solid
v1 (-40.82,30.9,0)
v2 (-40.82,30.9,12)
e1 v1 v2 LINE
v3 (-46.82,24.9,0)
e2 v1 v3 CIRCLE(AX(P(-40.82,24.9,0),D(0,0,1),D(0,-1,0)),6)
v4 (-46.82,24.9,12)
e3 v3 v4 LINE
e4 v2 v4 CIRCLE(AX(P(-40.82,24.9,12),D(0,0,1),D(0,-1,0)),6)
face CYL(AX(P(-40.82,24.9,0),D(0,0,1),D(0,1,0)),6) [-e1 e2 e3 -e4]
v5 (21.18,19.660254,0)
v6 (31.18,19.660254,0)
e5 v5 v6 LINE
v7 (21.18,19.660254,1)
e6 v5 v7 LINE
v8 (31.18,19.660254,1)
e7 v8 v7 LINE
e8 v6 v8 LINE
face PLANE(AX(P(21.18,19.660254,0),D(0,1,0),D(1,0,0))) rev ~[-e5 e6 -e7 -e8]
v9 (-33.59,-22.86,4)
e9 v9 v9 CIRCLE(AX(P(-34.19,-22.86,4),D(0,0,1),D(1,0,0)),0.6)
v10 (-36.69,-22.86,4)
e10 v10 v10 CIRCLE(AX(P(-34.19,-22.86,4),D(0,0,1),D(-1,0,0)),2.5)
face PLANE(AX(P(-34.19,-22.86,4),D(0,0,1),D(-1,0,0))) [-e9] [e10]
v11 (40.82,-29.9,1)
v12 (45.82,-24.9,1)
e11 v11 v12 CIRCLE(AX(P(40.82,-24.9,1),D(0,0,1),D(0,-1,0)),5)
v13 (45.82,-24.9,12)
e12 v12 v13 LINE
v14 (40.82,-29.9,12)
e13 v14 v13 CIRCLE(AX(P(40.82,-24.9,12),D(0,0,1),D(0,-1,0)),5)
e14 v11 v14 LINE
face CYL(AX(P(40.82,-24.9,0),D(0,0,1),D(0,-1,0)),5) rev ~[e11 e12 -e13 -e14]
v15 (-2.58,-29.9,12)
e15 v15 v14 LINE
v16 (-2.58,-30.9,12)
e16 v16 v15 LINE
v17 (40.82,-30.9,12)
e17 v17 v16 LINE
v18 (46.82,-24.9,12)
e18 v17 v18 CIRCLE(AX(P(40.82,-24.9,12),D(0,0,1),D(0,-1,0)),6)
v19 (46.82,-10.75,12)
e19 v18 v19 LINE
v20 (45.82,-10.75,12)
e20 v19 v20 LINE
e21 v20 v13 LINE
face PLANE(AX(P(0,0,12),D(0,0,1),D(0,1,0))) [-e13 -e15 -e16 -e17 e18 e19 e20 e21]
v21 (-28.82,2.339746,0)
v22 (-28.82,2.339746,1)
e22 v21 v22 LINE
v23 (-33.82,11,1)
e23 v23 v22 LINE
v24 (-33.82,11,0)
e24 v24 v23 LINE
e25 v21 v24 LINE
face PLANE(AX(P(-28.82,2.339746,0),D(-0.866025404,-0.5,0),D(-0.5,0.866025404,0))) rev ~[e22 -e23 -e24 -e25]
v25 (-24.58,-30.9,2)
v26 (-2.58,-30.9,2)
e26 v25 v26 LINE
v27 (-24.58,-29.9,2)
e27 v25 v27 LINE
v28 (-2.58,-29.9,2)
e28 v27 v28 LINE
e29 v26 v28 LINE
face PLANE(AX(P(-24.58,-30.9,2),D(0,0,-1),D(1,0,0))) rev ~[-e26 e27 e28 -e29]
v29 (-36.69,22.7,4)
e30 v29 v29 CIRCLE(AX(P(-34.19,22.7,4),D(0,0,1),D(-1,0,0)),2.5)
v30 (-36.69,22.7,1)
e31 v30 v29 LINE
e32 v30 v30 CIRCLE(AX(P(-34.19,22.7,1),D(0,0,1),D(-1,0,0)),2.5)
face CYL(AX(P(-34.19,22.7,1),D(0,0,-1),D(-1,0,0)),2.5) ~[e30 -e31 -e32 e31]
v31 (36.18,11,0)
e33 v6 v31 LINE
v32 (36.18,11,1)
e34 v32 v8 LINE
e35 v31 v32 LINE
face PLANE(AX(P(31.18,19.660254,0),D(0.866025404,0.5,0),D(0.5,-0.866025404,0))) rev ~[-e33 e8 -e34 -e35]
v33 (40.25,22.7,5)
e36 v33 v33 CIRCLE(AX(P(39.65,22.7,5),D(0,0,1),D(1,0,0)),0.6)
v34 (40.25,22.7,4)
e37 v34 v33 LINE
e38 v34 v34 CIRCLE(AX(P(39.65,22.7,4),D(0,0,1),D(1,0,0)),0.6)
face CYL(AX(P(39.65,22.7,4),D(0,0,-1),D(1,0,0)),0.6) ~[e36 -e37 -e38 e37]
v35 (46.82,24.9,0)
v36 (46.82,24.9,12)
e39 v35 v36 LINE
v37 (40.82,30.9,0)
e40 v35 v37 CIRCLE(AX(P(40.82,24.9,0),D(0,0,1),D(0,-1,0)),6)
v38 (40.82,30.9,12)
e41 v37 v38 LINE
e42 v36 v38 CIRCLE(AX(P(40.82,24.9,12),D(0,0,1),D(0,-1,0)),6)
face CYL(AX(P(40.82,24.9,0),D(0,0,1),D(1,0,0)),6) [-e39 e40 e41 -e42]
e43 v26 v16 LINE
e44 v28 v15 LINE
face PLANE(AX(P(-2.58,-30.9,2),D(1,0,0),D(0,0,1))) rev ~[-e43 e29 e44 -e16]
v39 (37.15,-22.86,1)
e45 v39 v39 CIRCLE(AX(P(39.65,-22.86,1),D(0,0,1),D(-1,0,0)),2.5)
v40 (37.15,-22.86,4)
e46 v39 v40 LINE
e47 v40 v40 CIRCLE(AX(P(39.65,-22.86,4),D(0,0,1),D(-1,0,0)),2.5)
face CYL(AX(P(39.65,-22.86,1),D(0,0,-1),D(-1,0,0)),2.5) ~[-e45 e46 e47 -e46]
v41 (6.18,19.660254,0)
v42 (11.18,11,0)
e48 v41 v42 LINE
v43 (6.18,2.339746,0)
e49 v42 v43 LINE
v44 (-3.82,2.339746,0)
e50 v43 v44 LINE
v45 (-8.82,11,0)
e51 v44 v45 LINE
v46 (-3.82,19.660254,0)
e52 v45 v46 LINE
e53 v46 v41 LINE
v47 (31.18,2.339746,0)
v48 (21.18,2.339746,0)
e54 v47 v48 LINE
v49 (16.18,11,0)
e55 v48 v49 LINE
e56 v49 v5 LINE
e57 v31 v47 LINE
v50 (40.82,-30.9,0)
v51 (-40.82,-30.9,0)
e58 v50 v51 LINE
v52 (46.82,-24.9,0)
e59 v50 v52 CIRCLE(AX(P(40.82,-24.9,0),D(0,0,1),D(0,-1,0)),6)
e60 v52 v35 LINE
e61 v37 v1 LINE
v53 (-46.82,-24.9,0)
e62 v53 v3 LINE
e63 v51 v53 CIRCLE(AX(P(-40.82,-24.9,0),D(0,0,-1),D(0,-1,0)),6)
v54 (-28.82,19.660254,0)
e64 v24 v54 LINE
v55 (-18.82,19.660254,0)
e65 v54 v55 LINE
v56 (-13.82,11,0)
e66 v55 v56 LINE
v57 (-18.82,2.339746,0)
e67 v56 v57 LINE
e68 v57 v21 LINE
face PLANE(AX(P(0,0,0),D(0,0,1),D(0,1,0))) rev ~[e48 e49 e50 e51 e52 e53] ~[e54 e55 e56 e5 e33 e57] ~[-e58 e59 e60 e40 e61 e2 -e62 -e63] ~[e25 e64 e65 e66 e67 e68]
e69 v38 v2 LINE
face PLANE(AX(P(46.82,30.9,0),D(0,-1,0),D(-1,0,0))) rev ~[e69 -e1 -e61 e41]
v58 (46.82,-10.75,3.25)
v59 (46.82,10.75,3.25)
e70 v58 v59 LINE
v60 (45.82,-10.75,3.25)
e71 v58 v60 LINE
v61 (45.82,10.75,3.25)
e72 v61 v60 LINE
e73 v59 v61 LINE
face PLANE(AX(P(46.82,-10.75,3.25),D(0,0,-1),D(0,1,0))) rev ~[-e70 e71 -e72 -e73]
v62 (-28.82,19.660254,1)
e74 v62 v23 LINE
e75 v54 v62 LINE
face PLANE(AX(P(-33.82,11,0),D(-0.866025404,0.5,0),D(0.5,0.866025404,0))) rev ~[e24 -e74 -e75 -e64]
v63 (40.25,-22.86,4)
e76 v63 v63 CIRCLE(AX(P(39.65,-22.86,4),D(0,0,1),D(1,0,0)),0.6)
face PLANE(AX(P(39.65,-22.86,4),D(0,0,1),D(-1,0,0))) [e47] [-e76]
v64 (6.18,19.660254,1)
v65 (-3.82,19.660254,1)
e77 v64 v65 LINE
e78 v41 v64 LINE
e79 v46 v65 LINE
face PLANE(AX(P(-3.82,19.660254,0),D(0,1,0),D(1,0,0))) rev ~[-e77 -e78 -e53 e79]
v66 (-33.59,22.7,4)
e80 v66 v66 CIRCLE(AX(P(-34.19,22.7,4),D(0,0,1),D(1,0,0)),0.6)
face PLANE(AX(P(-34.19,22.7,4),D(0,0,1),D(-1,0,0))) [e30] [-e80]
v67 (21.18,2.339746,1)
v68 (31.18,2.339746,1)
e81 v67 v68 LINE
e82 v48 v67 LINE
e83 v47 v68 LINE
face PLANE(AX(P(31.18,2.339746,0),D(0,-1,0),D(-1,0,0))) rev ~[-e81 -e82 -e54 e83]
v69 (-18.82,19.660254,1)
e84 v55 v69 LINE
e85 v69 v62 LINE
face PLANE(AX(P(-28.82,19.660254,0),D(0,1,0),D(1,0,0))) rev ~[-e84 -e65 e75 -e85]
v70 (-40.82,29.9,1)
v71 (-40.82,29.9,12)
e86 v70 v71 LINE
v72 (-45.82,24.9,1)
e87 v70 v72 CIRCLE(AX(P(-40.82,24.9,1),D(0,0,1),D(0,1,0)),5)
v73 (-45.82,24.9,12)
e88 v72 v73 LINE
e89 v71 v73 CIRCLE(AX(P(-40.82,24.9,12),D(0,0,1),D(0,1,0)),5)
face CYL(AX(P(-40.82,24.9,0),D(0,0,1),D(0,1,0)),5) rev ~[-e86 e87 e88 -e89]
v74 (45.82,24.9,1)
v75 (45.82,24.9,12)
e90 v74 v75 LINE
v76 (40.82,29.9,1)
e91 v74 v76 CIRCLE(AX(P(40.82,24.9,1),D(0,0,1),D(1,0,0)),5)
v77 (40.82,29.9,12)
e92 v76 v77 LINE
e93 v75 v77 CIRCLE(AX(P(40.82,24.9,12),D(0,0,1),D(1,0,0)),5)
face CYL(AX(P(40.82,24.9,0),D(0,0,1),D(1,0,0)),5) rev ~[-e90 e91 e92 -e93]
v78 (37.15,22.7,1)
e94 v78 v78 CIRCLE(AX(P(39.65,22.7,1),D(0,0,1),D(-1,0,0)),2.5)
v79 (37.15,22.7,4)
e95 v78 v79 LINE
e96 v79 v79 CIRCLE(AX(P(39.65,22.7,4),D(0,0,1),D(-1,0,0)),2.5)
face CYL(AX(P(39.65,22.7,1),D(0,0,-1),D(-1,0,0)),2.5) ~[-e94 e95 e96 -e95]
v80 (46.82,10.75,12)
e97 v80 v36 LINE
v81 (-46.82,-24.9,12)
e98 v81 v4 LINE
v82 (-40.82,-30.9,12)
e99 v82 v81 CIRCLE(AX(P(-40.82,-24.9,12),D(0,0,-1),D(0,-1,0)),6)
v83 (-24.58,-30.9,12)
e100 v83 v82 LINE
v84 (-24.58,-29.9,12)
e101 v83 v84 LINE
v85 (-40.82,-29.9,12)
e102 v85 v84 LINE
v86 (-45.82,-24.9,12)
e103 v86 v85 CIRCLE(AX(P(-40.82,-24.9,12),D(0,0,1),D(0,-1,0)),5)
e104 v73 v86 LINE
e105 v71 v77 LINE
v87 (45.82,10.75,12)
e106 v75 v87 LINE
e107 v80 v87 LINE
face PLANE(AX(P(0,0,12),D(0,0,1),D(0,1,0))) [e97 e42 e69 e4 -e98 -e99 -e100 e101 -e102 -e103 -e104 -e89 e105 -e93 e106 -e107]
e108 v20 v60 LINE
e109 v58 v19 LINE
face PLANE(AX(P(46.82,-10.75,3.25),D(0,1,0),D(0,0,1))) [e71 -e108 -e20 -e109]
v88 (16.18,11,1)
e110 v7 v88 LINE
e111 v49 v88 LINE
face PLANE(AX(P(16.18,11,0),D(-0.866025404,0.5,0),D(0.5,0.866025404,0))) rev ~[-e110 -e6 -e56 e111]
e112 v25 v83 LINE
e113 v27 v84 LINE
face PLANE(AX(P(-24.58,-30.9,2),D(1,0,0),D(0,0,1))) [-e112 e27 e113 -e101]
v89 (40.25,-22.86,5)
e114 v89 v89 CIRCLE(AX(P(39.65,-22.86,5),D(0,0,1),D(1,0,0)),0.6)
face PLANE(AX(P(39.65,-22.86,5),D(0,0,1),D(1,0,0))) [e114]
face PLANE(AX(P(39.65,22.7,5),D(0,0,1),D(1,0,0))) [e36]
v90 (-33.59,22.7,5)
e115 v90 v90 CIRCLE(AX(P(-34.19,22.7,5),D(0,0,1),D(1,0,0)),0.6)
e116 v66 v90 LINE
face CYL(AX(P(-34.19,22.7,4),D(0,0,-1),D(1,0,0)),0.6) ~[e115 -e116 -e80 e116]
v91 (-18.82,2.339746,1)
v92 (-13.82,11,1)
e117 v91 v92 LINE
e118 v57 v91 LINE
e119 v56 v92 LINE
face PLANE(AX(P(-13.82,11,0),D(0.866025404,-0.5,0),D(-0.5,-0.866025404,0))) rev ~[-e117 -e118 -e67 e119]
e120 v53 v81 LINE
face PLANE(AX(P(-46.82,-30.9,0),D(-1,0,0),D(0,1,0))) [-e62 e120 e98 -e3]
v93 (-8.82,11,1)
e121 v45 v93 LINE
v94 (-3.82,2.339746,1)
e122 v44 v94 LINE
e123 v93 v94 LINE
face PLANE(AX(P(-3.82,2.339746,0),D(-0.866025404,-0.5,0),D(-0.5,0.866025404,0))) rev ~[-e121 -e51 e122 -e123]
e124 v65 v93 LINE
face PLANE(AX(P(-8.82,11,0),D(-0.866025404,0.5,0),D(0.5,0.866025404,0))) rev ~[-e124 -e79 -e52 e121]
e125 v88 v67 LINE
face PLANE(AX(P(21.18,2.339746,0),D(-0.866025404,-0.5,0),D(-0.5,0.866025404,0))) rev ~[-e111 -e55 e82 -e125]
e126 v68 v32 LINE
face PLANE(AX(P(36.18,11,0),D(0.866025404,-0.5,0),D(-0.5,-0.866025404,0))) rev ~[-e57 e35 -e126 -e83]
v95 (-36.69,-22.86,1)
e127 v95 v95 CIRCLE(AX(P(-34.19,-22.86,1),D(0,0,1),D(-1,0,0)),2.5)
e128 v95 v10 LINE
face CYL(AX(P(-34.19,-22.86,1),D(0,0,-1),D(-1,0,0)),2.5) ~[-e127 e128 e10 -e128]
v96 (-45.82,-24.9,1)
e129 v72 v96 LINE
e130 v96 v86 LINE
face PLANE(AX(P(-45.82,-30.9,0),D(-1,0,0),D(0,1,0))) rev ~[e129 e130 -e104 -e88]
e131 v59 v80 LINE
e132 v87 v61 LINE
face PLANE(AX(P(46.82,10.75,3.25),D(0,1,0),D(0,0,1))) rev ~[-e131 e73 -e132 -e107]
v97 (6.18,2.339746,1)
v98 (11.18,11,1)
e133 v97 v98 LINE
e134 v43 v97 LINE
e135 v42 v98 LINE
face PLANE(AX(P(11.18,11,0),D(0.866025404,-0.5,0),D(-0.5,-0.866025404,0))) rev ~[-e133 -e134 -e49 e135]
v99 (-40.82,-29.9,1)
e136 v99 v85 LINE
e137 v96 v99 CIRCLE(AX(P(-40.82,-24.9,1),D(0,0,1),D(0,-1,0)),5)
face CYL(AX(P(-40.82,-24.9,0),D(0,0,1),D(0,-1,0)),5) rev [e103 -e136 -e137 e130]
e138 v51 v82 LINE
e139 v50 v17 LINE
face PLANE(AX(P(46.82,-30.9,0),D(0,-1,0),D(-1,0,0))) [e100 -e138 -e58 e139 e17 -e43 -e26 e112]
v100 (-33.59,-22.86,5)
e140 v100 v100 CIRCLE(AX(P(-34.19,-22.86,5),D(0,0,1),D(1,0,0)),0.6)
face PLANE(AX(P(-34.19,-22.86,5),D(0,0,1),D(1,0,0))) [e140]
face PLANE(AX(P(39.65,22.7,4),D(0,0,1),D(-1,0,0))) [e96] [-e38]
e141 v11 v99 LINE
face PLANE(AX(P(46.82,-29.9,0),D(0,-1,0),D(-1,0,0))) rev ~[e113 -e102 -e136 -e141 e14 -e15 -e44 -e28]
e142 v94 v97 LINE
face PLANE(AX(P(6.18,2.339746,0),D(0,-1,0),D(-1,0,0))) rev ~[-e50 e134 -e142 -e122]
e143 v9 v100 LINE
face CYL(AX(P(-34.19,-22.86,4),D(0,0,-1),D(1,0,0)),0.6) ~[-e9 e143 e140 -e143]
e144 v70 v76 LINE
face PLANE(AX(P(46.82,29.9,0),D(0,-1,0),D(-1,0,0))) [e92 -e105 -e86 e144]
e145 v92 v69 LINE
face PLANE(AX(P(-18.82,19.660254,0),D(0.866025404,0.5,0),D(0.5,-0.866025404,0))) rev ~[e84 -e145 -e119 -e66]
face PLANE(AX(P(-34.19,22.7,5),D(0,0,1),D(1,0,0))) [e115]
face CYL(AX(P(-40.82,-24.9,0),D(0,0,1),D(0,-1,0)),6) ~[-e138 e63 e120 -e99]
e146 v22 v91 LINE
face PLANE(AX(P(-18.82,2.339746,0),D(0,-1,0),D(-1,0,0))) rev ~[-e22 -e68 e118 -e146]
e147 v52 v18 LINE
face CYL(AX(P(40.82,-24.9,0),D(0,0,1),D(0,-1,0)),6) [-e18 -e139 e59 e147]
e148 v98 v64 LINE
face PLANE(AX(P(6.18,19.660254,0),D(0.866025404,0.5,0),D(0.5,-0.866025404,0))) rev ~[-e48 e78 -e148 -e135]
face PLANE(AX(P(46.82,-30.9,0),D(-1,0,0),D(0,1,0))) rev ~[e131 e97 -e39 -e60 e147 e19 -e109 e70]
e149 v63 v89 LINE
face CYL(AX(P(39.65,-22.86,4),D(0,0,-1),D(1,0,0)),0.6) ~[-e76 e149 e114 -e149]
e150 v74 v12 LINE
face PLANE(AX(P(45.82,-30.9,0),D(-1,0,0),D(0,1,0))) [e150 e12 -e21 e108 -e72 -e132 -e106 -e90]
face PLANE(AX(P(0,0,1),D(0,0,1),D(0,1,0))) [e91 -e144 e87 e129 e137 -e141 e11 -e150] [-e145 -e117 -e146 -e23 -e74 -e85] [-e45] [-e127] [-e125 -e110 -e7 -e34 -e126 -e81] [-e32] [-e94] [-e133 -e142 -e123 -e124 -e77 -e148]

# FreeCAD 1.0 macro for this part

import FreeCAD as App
import Part
import Sketcher

V = App.Vector
Q = App.Units.Quantity


def edges_at(feature, points):
    """Names of the edges that pass closest to the given points."""
    edges = feature.Shape.Edges
    near = lambda p: min(range(len(edges)), key=lambda i: edges[i].distToShape(Part.Vertex(*p))[0])
    return sorted({f"Edge{near(p) + 1}" for p in points})


def faces_at(feature, points):
    """Names of the faces that lie closest to the given points."""
    faces = feature.Shape.Faces
    near = lambda p: min(range(len(faces)), key=lambda i: faces[i].distToShape(Part.Vertex(*p))[0])
    return sorted({f"Face{near(p) + 1}" for p in points})

doc = App.newDocument("Part")
params = doc.addObject("Spreadsheet::Sheet", "Params")
for row, (alias, value) in enumerate([
    ("sketch1_height", "61.8 mm"),
    ("sketch1_width", "93.64 mm"),
    ("pad1_length", "12 mm"),
    ("fillet_radius", "6 mm"),
    ("thickness_wall", "1 mm"),
    ("sketch2_width", "21.5 mm"),
    ("sketch2_height", "17.5 mm"),
    ("pocket1_length", "6 mm"),
    ("sketch3_width", "22 mm"),
    ("sketch3_height", "10 mm"),
    ("pocket2_length", "6 mm"),
    ("sketch4_width", "10 mm"),
    ("sketch4_length", "10 mm"),
    ("pocket3_length", "6 mm"),
    ("linearpattern_pitch", "25 mm"),
    ("sketch5_diameter", "5 mm"),
    ("pad2_length", "3 mm"),
    ("sketch6_diameter", "1.2 mm"),
    ("pad3_length", "1 mm"),
], start=1):
    params.set(f"A{row}", alias)
    params.set(f"B{row}", "=" + value)
    params.setAlias(f"B{row}", alias)

body = doc.addObject("PartDesign::Body", "Body")

# Sketch on XY plane
sketch1 = body.newObject("Sketcher::SketchObject", "Sketch")
sketch1.AttachmentSupport = (doc.getObject("XY_Plane"), [""])
sketch1.MapMode = "FlatFace"
sketch1.addGeometry([
    Part.LineSegment(V(-46.82, -30.9, 0), V(46.82, -30.9, 0)),
    Part.LineSegment(V(46.82, -30.9, 0), V(46.82, 30.9, 0)),
    Part.LineSegment(V(46.82, 30.9, 0), V(-46.82, 30.9, 0)),
    Part.LineSegment(V(-46.82, 30.9, 0), V(-46.82, -30.9, 0)),
], False)
sketch1.addConstraint([
    Sketcher.Constraint("Coincident", 0, 2, 1, 1),
    Sketcher.Constraint("Coincident", 1, 2, 2, 1),
    Sketcher.Constraint("Coincident", 2, 2, 3, 1),
    Sketcher.Constraint("Coincident", 3, 2, 0, 1),
    Sketcher.Constraint("Horizontal", 0),
    Sketcher.Constraint("Vertical", 1),
    Sketcher.Constraint("Horizontal", 2),
    Sketcher.Constraint("Vertical", 3),
    Sketcher.Constraint("Symmetric", 0, 2, 2, 2, -1, 1),
    Sketcher.Constraint("DistanceY", 1, 1, 1, 2, Q("61.8 mm")),
    Sketcher.Constraint("DistanceX", 0, 1, 0, 2, Q("93.64 mm")),
])
sketch1.setExpression("Constraints[9]", "Params.sketch1_height")
sketch1.setExpression("Constraints[10]", "Params.sketch1_width")
pad1 = body.newObject("PartDesign::Pad", "Pad")
pad1.Profile = sketch1
pad1.setExpression("Length", "Params.pad1_length")
doc.recompute()

fillet = body.newObject("PartDesign::Fillet", "Fillet")
fillet.Base = (pad1, edges_at(pad1, [
    (46.82, 30.9, 6),
    (46.82, -30.9, 6),
    (-46.82, -30.9, 6),
    (-46.82, 30.9, 6),
]))
fillet.setExpression("Radius", "Params.fillet_radius")
doc.recompute()

thickness = body.newObject("PartDesign::Thickness", "Thickness")
thickness.Base = (fillet, faces_at(fillet, [(0, 0, 12)]))
thickness.setExpression("Value", "Params.thickness_wall")
thickness.Reversed = True
thickness.Join = "Intersection"

# Sketch on YZ plane
sketch2 = body.newObject("Sketcher::SketchObject", "Sketch001")
sketch2.AttachmentSupport = (doc.getObject("YZ_Plane"), [""])
sketch2.MapMode = "FlatFace"
sketch2.AttachmentOffset = App.Placement(V(0, 0, 46.82), App.Rotation())
sketch2.addGeometry([
    Part.LineSegment(V(-10.75, 20.75, 0), V(-10.75, 3.25, 0)),
    Part.LineSegment(V(-10.75, 3.25, 0), V(10.75, 3.25, 0)),
    Part.LineSegment(V(10.75, 3.25, 0), V(10.75, 20.75, 0)),
    Part.LineSegment(V(10.75, 20.75, 0), V(-10.75, 20.75, 0)),
], False)
sketch2.addConstraint([
    Sketcher.Constraint("Coincident", 0, 2, 1, 1),
    Sketcher.Constraint("Coincident", 1, 2, 2, 1),
    Sketcher.Constraint("Coincident", 2, 2, 3, 1),
    Sketcher.Constraint("Coincident", 3, 2, 0, 1),
    Sketcher.Constraint("Vertical", 0),
    Sketcher.Constraint("Horizontal", 1),
    Sketcher.Constraint("Vertical", 2),
    Sketcher.Constraint("Horizontal", 3),
    Sketcher.Constraint("DistanceX", 1, 1, 1, 2, Q("21.5 mm")),
    Sketcher.Constraint("DistanceY", 0, 2, 0, 1, Q("17.5 mm")),
    Sketcher.Constraint("DistanceX", 0, 2, -1, 1, Q("10.75 mm")),
    Sketcher.Constraint("DistanceY", -1, 1, 0, 2, Q("3.25 mm")),
])
sketch2.setExpression("Constraints[8]", "Params.sketch2_width")
sketch2.setExpression("Constraints[9]", "Params.sketch2_height")
pocket1 = body.newObject("PartDesign::Pocket", "Pocket")
pocket1.Profile = sketch2
pocket1.setExpression("Length", "Params.pocket1_length")

# Sketch on XZ plane
sketch3 = body.newObject("Sketcher::SketchObject", "Sketch002")
sketch3.AttachmentSupport = (doc.getObject("XZ_Plane"), [""])
sketch3.MapMode = "FlatFace"
sketch3.AttachmentOffset = App.Placement(V(0, 0, 30.9), App.Rotation())
sketch3.addGeometry([
    Part.LineSegment(V(-24.58, 12, 0), V(-24.58, 2, 0)),
    Part.LineSegment(V(-24.58, 2, 0), V(-2.58, 2, 0)),
    Part.LineSegment(V(-2.58, 2, 0), V(-2.58, 12, 0)),
    Part.LineSegment(V(-2.58, 12, 0), V(-24.58, 12, 0)),
], False)
sketch3.addConstraint([
    Sketcher.Constraint("Coincident", 0, 2, 1, 1),
    Sketcher.Constraint("Coincident", 1, 2, 2, 1),
    Sketcher.Constraint("Coincident", 2, 2, 3, 1),
    Sketcher.Constraint("Coincident", 3, 2, 0, 1),
    Sketcher.Constraint("Vertical", 0),
    Sketcher.Constraint("Horizontal", 1),
    Sketcher.Constraint("Vertical", 2),
    Sketcher.Constraint("Horizontal", 3),
    Sketcher.Constraint("DistanceX", 1, 1, 1, 2, Q("22 mm")),
    Sketcher.Constraint("DistanceY", 0, 2, 0, 1, Q("10 mm")),
    Sketcher.Constraint("DistanceY", -1, 1, 0, 2, Q("2 mm")),
    Sketcher.Constraint("DistanceX", 0, 2, -1, 1, Q("24.58 mm")),
])
sketch3.setExpression("Constraints[8]", "Params.sketch3_width")
sketch3.setExpression("Constraints[9]", "Params.sketch3_height")
pocket2 = body.newObject("PartDesign::Pocket", "Pocket001")
pocket2.Profile = sketch3
pocket2.setExpression("Length", "Params.pocket2_length")

# Sketch on XY plane
sketch4 = body.newObject("Sketcher::SketchObject", "Sketch003")
sketch4.AttachmentSupport = (doc.getObject("XY_Plane"), [""])
sketch4.MapMode = "FlatFace"
sketch4.addGeometry([
    Part.LineSegment(V(-18.82, 2.339746, 0), V(-28.82, 2.339746, 0)),  # 0
    Part.LineSegment(V(-28.82, 2.339746, 0), V(-33.82, 11, 0)),  # 1
    Part.LineSegment(V(-33.82, 11, 0), V(-28.82, 19.660254, 0)),  # 2
    Part.LineSegment(V(-28.82, 19.660254, 0), V(-18.82, 19.660254, 0)),  # 3
    Part.LineSegment(V(-18.82, 19.660254, 0), V(-13.82, 11, 0)),  # 4
    Part.LineSegment(V(-13.82, 11, 0), V(-18.82, 2.339746, 0)),  # 5
], False)
sketch4.addConstraint([
    Sketcher.Constraint("Coincident", 0, 2, 1, 1),
    Sketcher.Constraint("Coincident", 1, 2, 2, 1),
    Sketcher.Constraint("Coincident", 2, 2, 3, 1),
    Sketcher.Constraint("Coincident", 3, 2, 4, 1),
    Sketcher.Constraint("Coincident", 4, 2, 5, 1),
    Sketcher.Constraint("Coincident", 5, 2, 0, 1),
    Sketcher.Constraint("Horizontal", 0),
    Sketcher.Constraint("Horizontal", 3),
    Sketcher.Constraint("Parallel", 1, 4),
    Sketcher.Constraint("Parallel", 2, 5),
    Sketcher.Constraint("Horizontal", 1, 2, 4, 2),
    Sketcher.Constraint("Vertical", 0, 2, 2, 2),
    Sketcher.Constraint("Vertical", 3, 2, 5, 2),
    Sketcher.Constraint("DistanceX", 0, 2, 0, 1, Q("10 mm")),
    Sketcher.Constraint("Angle", 1, Q("120 deg")),
    Sketcher.Constraint("Distance", 1, Q("10 mm")),
    Sketcher.Constraint("DistanceY", -1, 1, 1, 2, Q("11 mm")),
    Sketcher.Constraint("DistanceX", 0, 2, -1, 1, Q("28.82 mm")),
])
sketch4.setExpression("Constraints[13]", "Params.sketch4_width")
sketch4.setExpression("Constraints[15]", "Params.sketch4_length")
pocket3 = body.newObject("PartDesign::Pocket", "Pocket002")
pocket3.Profile = sketch4
pocket3.setExpression("Length", "Params.pocket3_length")
pocket3.Reversed = True
doc.recompute()

linearpattern = body.newObject("PartDesign::LinearPattern", "LinearPattern")
linearpattern.Originals = [pocket3]
linearpattern.Direction = (doc.getObject("X_Axis"), [""])
linearpattern.Mode = "offset"
linearpattern.setExpression("Offset", "Params.linearpattern_pitch")
linearpattern.Occurrences = 3
body.Tip = linearpattern

# Sketch on XY plane
sketch5 = body.newObject("Sketcher::SketchObject", "Sketch004")
sketch5.AttachmentSupport = (doc.getObject("XY_Plane"), [""])
sketch5.MapMode = "FlatFace"
sketch5.AttachmentOffset = App.Placement(V(0, 0, 1), App.Rotation())
sketch5.addGeometry([
    Part.Circle(V(-34.19, 22.7, 0), V(0, 0, 1), 2.5),
    Part.Circle(V(39.65, 22.7, 0), V(0, 0, 1), 2.5),
    Part.Circle(V(39.65, -22.86, 0), V(0, 0, 1), 2.5),
    Part.Circle(V(-34.19, -22.86, 0), V(0, 0, 1), 2.5),
], False)
sketch5.addConstraint([
    Sketcher.Constraint("Equal", 0, 1),
    Sketcher.Constraint("Equal", 1, 2),
    Sketcher.Constraint("Equal", 2, 3),
    Sketcher.Constraint("Horizontal", 0, 3, 1, 3),
    Sketcher.Constraint("Horizontal", 2, 3, 3, 3),
    Sketcher.Constraint("Vertical", 1, 3, 2, 3),
    Sketcher.Constraint("Vertical", 0, 3, 3, 3),
    Sketcher.Constraint("Diameter", 0, Q("5 mm")),
    Sketcher.Constraint("DistanceY", -1, 1, 0, 3, Q("22.7 mm")),
    Sketcher.Constraint("DistanceX", 0, 3, -1, 1, Q("34.19 mm")),
    Sketcher.Constraint("DistanceX", -1, 1, 1, 3, Q("39.65 mm")),
    Sketcher.Constraint("DistanceY", 2, 3, -1, 1, Q("22.86 mm")),
])
sketch5.setExpression("Constraints[7]", "Params.sketch5_diameter")
pad2 = body.newObject("PartDesign::Pad", "Pad001")
pad2.Profile = sketch5
pad2.setExpression("Length", "Params.pad2_length")

# Sketch on XY plane
sketch6 = body.newObject("Sketcher::SketchObject", "Sketch005")
sketch6.AttachmentSupport = (doc.getObject("XY_Plane"), [""])
sketch6.MapMode = "FlatFace"
sketch6.AttachmentOffset = App.Placement(V(0, 0, 4), App.Rotation())
sketch6.addGeometry([
    Part.Circle(V(-34.19, 22.7, 0), V(0, 0, 1), 0.6),
    Part.Circle(V(-34.19, -22.86, 0), V(0, 0, 1), 0.6),
    Part.Circle(V(39.65, -22.86, 0), V(0, 0, 1), 0.6),
    Part.Circle(V(39.65, 22.7, 0), V(0, 0, 1), 0.6),
], False)
sketch6.addConstraint([
    Sketcher.Constraint("Equal", 0, 1),
    Sketcher.Constraint("Equal", 1, 2),
    Sketcher.Constraint("Equal", 2, 3),
    Sketcher.Constraint("Horizontal", 1, 3, 2, 3),
    Sketcher.Constraint("Horizontal", 0, 3, 3, 3),
    Sketcher.Constraint("Vertical", 0, 3, 1, 3),
    Sketcher.Constraint("Vertical", 2, 3, 3, 3),
    Sketcher.Constraint("Diameter", 0, Q("1.2 mm")),
    Sketcher.Constraint("DistanceY", -1, 1, 0, 3, Q("22.7 mm")),
    Sketcher.Constraint("DistanceX", 0, 3, -1, 1, Q("34.19 mm")),
    Sketcher.Constraint("DistanceY", 1, 3, -1, 1, Q("22.86 mm")),
    Sketcher.Constraint("DistanceX", -1, 1, 2, 3, Q("39.65 mm")),
])
sketch6.setExpression("Constraints[7]", "Params.sketch6_diameter")
pad3 = body.newObject("PartDesign::Pad", "Pad002")
pad3.Profile = sketch6
pad3.setExpression("Length", "Params.pad3_length")

doc.recompute()
